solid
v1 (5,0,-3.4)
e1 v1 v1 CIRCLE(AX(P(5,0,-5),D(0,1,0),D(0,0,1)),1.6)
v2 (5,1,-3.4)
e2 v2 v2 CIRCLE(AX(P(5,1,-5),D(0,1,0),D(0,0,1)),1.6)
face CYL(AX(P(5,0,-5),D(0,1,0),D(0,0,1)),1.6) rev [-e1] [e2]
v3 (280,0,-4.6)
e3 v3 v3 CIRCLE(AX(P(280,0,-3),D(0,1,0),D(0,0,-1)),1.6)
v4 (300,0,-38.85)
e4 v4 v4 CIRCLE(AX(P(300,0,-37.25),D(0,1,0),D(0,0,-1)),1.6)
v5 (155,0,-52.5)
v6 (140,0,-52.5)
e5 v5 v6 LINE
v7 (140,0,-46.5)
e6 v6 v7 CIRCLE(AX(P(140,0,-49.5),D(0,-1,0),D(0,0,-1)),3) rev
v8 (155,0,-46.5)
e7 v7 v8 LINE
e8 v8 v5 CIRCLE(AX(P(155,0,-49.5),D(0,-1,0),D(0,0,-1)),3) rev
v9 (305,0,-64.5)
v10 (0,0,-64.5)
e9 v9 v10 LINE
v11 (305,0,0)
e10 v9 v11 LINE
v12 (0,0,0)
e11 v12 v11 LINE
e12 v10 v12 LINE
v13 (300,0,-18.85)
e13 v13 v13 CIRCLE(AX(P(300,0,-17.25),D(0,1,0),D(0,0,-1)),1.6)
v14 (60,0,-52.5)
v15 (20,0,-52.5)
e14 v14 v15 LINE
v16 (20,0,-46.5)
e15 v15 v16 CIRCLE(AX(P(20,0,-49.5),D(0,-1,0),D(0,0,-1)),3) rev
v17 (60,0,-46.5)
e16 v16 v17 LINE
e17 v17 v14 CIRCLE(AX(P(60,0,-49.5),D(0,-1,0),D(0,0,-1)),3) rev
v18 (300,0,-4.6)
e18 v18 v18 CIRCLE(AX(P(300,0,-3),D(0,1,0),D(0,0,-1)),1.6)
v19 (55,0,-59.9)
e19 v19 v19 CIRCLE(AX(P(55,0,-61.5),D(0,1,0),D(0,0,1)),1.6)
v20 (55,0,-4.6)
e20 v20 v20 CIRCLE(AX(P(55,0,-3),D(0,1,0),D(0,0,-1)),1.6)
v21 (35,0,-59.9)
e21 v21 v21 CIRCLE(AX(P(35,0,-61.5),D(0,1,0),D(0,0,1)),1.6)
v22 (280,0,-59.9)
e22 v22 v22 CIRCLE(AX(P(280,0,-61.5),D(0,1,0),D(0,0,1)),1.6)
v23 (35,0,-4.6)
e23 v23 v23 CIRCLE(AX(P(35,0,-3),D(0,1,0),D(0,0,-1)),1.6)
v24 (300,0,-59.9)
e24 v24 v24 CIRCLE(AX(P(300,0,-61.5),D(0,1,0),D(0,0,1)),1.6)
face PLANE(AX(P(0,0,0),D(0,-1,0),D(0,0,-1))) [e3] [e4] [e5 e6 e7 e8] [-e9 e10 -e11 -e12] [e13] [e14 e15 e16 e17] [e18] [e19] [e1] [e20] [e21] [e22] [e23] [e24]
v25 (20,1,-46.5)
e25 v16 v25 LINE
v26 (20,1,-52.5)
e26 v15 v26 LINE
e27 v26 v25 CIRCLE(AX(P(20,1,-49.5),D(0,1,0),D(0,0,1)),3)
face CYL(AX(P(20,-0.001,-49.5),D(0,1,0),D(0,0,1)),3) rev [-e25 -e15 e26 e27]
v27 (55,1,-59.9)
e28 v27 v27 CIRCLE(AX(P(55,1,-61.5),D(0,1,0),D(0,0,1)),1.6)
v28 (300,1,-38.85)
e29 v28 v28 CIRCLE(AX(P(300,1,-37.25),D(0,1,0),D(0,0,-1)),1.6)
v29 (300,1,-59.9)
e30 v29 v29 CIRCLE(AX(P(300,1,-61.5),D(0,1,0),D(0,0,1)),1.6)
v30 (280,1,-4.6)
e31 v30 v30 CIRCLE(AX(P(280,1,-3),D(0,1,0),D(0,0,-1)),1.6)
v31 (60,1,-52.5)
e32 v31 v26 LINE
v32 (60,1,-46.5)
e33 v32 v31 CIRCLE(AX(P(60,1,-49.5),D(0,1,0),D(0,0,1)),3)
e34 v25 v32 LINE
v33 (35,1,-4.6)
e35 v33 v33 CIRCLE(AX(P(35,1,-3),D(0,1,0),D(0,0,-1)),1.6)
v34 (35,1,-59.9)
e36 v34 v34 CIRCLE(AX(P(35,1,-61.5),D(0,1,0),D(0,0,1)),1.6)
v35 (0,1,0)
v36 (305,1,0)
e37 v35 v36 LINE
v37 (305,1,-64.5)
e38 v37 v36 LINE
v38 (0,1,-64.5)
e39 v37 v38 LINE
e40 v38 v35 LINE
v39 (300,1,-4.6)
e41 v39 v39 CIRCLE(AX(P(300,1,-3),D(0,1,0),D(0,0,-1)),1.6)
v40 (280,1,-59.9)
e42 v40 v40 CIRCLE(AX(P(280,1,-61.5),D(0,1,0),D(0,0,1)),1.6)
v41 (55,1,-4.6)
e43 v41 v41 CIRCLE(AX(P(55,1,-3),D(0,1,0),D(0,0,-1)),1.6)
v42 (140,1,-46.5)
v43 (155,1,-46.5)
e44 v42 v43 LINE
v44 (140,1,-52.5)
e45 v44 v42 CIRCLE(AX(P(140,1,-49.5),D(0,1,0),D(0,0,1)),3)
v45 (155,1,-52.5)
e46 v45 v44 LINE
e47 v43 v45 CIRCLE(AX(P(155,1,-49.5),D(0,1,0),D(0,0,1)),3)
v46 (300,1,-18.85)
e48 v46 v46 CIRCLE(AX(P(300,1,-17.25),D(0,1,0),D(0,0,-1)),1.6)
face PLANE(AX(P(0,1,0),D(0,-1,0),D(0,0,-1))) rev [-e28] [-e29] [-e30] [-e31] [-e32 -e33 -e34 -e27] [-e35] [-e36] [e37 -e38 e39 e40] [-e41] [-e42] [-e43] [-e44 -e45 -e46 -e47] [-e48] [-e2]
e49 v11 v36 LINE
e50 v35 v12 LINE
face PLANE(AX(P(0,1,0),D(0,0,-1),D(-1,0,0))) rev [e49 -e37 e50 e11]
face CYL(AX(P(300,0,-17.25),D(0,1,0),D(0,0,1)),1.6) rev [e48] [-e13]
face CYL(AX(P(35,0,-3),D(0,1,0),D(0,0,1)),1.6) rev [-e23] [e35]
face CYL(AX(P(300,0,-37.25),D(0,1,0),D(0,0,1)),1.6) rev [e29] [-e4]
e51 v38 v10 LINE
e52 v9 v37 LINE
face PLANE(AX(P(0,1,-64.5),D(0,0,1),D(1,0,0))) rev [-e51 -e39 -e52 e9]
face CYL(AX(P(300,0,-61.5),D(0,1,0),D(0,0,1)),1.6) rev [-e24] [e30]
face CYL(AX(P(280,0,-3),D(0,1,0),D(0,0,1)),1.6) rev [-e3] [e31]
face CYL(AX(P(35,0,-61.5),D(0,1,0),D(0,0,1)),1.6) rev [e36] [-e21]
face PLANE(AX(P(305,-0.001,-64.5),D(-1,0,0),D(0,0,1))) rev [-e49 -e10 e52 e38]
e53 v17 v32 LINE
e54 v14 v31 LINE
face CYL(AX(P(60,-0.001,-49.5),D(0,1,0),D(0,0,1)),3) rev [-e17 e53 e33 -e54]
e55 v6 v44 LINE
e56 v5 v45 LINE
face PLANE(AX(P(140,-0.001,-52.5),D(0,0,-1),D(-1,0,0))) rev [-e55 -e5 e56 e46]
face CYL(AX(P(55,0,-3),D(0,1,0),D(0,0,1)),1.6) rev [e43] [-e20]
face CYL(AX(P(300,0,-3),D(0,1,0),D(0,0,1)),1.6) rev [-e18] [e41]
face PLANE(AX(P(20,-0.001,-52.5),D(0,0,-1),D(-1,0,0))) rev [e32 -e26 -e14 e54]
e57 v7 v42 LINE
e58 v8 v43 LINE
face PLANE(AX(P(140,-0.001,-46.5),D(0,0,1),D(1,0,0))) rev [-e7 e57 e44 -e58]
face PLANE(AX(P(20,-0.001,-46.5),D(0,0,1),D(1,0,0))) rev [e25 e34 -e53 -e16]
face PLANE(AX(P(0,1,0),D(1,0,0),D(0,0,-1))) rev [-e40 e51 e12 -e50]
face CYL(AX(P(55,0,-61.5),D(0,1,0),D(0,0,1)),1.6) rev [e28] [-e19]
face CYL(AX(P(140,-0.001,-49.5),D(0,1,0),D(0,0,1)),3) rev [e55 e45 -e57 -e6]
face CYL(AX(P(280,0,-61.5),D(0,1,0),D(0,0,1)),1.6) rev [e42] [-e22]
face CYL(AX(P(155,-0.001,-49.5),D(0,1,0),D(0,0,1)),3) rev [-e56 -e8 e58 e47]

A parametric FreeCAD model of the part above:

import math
import FreeCAD as App
import Part
import Sketcher


def add_polygon(sketch, points):
    """Adds a closed chain of lines whose ends are joined by coincident constraints."""
    first, n = sketch.GeometryCount, len(points)
    for a, b in zip(points, points[1:] + points[:1]):
        sketch.addGeometry(Part.LineSegment(App.Vector(*a, 0), App.Vector(*b, 0)), False)
    for i in range(n):
        sketch.addConstraint(Sketcher.Constraint("Coincident", first + i, 2, first + (i + 1) % n, 1))

doc = App.newDocument("Part")
body = doc.addObject("PartDesign::Body", "Body")

# Sketch on XZ plane
sketch1 = body.newObject("Sketcher::SketchObject", "Sketch")
sketch1.AttachmentSupport = (doc.getObject("XZ_Plane"), [""])
sketch1.MapMode = "FlatFace"
add_polygon(sketch1, [(0, -64.5), (0, 0), (330, 0), (330, -64.5)])  # lines 0-3
sketch1.addConstraint([
    Sketcher.Constraint("Vertical", 0),
    Sketcher.Constraint("Horizontal", 1),
    Sketcher.Constraint("Vertical", 2),
    Sketcher.Constraint("Horizontal", 3),
    Sketcher.Constraint("Coincident", 0, 2, -1, 1),
    Sketcher.Constraint("DistanceX", 1, 1, 1, 2, 330.0),
    Sketcher.Constraint("DistanceY", 0, 1, 0, 2, 64.5),
])
pad1 = body.newObject("PartDesign::Pad", "Pad")
pad1.Profile = sketch1
pad1.Length = 1
pad1.Reversed = True

# Sketch on XZ plane
sketch2 = body.newObject("Sketcher::SketchObject", "Sketch001")
sketch2.AttachmentSupport = (doc.getObject("XZ_Plane"), [""])
sketch2.MapMode = "FlatFace"
sketch2.AttachmentOffset = App.Placement(App.Vector(0, 0, -1), App.Rotation())
sketch2.addGeometry([
    Part.Circle(App.Vector(35, -61.5, 0), App.Vector(0, 0, 1), 1.6),  # 0
    Part.Circle(App.Vector(55, -61.5, 0), App.Vector(0, 0, 1), 1.6),  # 1
    Part.Circle(App.Vector(280, -61.5, 0), App.Vector(0, 0, 1), 1.6),  # 2
    Part.Circle(App.Vector(300, -61.5, 0), App.Vector(0, 0, 1), 1.6),  # 3
    Part.Circle(App.Vector(300, -3, 0), App.Vector(0, 0, 1), 1.6),  # 4
    Part.Circle(App.Vector(280, -3, 0), App.Vector(0, 0, 1), 1.6),  # 5
    Part.Circle(App.Vector(55, -3, 0), App.Vector(0, 0, 1), 1.6),  # 6
    Part.Circle(App.Vector(35, -3, 0), App.Vector(0, 0, 1), 1.6),  # 7
    Part.Circle(App.Vector(300, -37.25, 0), App.Vector(0, 0, 1), 1.6),  # 8
    Part.Circle(App.Vector(300, -17.25, 0), App.Vector(0, 0, 1), 1.6),  # 9
    Part.Circle(App.Vector(5, -5, 0), App.Vector(0, 0, 1), 1.6),  # 10
], False)
sketch2.addConstraint([
    Sketcher.Constraint("Equal", 0, 1),
    Sketcher.Constraint("Equal", 1, 2),
    Sketcher.Constraint("Equal", 2, 3),
    Sketcher.Constraint("Equal", 3, 4),
    Sketcher.Constraint("Equal", 4, 5),
    Sketcher.Constraint("Equal", 5, 6),
    Sketcher.Constraint("Equal", 6, 7),
    Sketcher.Constraint("Equal", 7, 8),
    Sketcher.Constraint("Equal", 8, 9),
    Sketcher.Constraint("Equal", 9, 10),
    Sketcher.Constraint("Horizontal", 0, 3, 1, 3),
    Sketcher.Constraint("Horizontal", 1, 3, 2, 3),
    Sketcher.Constraint("Horizontal", 2, 3, 3, 3),
    Sketcher.Constraint("Horizontal", 4, 3, 5, 3),
    Sketcher.Constraint("Horizontal", 5, 3, 6, 3),
    Sketcher.Constraint("Horizontal", 6, 3, 7, 3),
    Sketcher.Constraint("Vertical", 3, 3, 4, 3),
    Sketcher.Constraint("Vertical", 2, 3, 5, 3),
    Sketcher.Constraint("Vertical", 1, 3, 6, 3),
    Sketcher.Constraint("Vertical", 0, 3, 7, 3),
    Sketcher.Constraint("Vertical", 4, 3, 8, 3),
    Sketcher.Constraint("Vertical", 8, 3, 9, 3),
    Sketcher.Constraint("Diameter", 0, 3.2),
    Sketcher.Constraint("DistanceX", -1, 1, 0, 3, 35.0),
    Sketcher.Constraint("DistanceX", -1, 1, 1, 3, 55.0),
    Sketcher.Constraint("DistanceX", -1, 1, 2, 3, 280.0),
    Sketcher.Constraint("DistanceX", -1, 1, 3, 3, 300.0),
    Sketcher.Constraint("DistanceY", 4, 3, -1, 1, 3.0),
    Sketcher.Constraint("DistanceX", -1, 1, 10, 3, 5.0),
    Sketcher.Constraint("DistanceY", 10, 3, -1, 1, 5.0),
    Sketcher.Constraint("DistanceY", 8, 3, 9, 3, 20.0),
    Sketcher.Constraint("DistanceY", 0, 3, -1, 1, 61.5),
    Sketcher.Constraint("DistanceY", 8, 3, -1, 1, 37.25),
])
pocket1 = body.newObject("PartDesign::Pocket", "Pocket")
pocket1.Profile = sketch2
pocket1.Type = "ThroughAll"
pocket1.Reversed = True

# Sketch on XZ plane
sketch3 = body.newObject("Sketcher::SketchObject", "Sketch002")
sketch3.AttachmentSupport = (doc.getObject("XZ_Plane"), [""])
sketch3.MapMode = "FlatFace"
sketch3.AttachmentOffset = App.Placement(App.Vector(0, 0, -1), App.Rotation())
add_polygon(sketch3, [(305, -64.5), (305, 0), (330, 0), (330, -64.5)])  # lines 0-3
sketch3.addConstraint([
    Sketcher.Constraint("Vertical", 0),
    Sketcher.Constraint("Horizontal", 1),
    Sketcher.Constraint("Vertical", 2),
    Sketcher.Constraint("Horizontal", 3),
    Sketcher.Constraint("PointOnObject", 0, 2, -1),
    Sketcher.Constraint("DistanceX", 1, 1, 1, 2, 25.0),
    Sketcher.Constraint("DistanceY", 0, 1, 0, 2, 64.5),
    Sketcher.Constraint("DistanceX", -1, 1, 0, 2, 305.0),
])
pocket2 = body.newObject("PartDesign::Pocket", "Pocket001")
pocket2.Profile = sketch3
pocket2.Type = "UpToFirst"
pocket2.Reversed = True

# Sketch on XZ plane
sketch4 = body.newObject("Sketcher::SketchObject", "Sketch003")
sketch4.AttachmentSupport = (doc.getObject("XZ_Plane"), [""])
sketch4.MapMode = "FlatFace"
sketch4.AttachmentOffset = App.Placement(App.Vector(0, 0, -1), App.Rotation())
sketch4.addGeometry([
    Part.LineSegment(App.Vector(155, -52.5, 0), App.Vector(140, -52.5, 0)),
    Part.ArcOfCircle(Part.Circle(App.Vector(140, -49.5, 0), App.Vector(0, 0, 1), 3), math.radians(90), math.radians(270)),
    Part.LineSegment(App.Vector(140, -46.5, 0), App.Vector(155, -46.5, 0)),
    Part.ArcOfCircle(Part.Circle(App.Vector(155, -49.5, 0), App.Vector(0, 0, 1), 3), math.radians(-90), math.radians(90)),
], False)
sketch4.addConstraint([
    Sketcher.Constraint("Tangent", 0, 2, 1, 2),
    Sketcher.Constraint("Tangent", 1, 1, 2, 1),
    Sketcher.Constraint("Tangent", 2, 2, 3, 2),
    Sketcher.Constraint("Tangent", 3, 1, 0, 1),
    Sketcher.Constraint("Horizontal", 0),
    Sketcher.Constraint("Horizontal", 2),
    Sketcher.Constraint("Radius", 1, 3.0),
    Sketcher.Constraint("DistanceX", 0, 2, 0, 1, 15.0),
    Sketcher.Constraint("DistanceX", -1, 1, 1, 3, 140.0),
    Sketcher.Constraint("DistanceY", 1, 3, -1, 1, 49.5),
])
pocket3 = body.newObject("PartDesign::Pocket", "Pocket002")
pocket3.Profile = sketch4
pocket3.Type = "UpToFirst"
pocket3.Reversed = True

# Sketch on XZ plane
sketch5 = body.newObject("Sketcher::SketchObject", "Sketch004")
sketch5.AttachmentSupport = (doc.getObject("XZ_Plane"), [""])
sketch5.MapMode = "FlatFace"
sketch5.AttachmentOffset = App.Placement(App.Vector(0, 0, -1), App.Rotation())
sketch5.addGeometry([
    Part.LineSegment(App.Vector(60, -52.5, 0), App.Vector(20, -52.5, 0)),
    Part.ArcOfCircle(Part.Circle(App.Vector(20, -49.5, 0), App.Vector(0, 0, 1), 3), math.radians(90), math.radians(270)),
    Part.LineSegment(App.Vector(20, -46.5, 0), App.Vector(60, -46.5, 0)),
    Part.ArcOfCircle(Part.Circle(App.Vector(60, -49.5, 0), App.Vector(0, 0, 1), 3), math.radians(-90), math.radians(90)),
], False)
sketch5.addConstraint([
    Sketcher.Constraint("Tangent", 0, 2, 1, 2),
    Sketcher.Constraint("Tangent", 1, 1, 2, 1),
    Sketcher.Constraint("Tangent", 2, 2, 3, 2),
    Sketcher.Constraint("Tangent", 3, 1, 0, 1),
    Sketcher.Constraint("Horizontal", 0),
    Sketcher.Constraint("Horizontal", 2),
    Sketcher.Constraint("Radius", 1, 3.0),
    Sketcher.Constraint("DistanceX", 0, 2, 0, 1, 40.0),
    Sketcher.Constraint("DistanceX", -1, 1, 1, 3, 20.0),
    Sketcher.Constraint("DistanceY", 1, 3, -1, 1, 49.5),
])
pocket4 = body.newObject("PartDesign::Pocket", "Pocket003")
pocket4.Profile = sketch5
pocket4.Type = "UpToFirst"
pocket4.Reversed = True

doc.recompute()
